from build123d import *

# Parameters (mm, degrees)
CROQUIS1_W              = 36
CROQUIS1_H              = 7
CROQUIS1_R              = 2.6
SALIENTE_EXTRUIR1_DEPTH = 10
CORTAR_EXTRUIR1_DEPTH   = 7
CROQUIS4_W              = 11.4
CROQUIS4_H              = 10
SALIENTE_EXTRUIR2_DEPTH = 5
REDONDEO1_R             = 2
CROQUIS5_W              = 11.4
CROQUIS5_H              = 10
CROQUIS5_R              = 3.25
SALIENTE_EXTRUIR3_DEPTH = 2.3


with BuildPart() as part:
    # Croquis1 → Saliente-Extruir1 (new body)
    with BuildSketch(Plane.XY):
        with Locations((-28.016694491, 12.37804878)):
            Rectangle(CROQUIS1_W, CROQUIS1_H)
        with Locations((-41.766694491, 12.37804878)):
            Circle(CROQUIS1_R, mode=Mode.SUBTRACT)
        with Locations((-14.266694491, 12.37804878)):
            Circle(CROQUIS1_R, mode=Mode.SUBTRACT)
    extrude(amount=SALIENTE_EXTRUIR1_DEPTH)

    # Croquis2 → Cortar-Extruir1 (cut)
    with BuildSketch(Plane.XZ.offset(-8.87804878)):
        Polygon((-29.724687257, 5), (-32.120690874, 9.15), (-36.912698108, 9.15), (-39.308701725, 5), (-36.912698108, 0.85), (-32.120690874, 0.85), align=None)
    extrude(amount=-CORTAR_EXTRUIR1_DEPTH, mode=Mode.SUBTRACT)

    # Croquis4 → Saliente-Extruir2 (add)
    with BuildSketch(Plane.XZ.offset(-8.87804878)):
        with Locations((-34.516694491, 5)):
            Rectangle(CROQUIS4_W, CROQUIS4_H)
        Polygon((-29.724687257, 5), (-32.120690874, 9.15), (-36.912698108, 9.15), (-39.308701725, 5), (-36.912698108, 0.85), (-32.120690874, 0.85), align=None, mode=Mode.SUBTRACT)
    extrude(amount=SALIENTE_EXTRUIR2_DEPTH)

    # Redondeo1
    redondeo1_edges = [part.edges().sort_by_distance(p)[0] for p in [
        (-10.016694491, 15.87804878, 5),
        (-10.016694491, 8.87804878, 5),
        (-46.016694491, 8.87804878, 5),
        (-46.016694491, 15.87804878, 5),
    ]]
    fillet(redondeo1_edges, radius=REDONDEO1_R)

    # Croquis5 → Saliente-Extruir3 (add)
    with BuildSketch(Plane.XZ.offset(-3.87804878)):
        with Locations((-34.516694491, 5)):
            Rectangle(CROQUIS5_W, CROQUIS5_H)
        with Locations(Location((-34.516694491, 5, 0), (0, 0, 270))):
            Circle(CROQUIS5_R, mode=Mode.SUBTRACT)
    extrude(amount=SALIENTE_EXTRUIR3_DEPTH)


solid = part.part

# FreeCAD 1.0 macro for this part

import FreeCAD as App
import Part
import Sketcher
Q = App.Units.Quantity


def edges_at(feature, points):
    """Names of the edges that pass closest to the given points."""
    edges = feature.Shape.Edges
    near = lambda p: min(range(len(edges)), key=lambda i: edges[i].distToShape(Part.Vertex(*p))[0])
    return sorted({f"Edge{near(p) + 1}" for p in points})


def add_polygon(sketch, points):
    """Adds a closed chain of lines whose ends are joined by coincident constraints."""
    first, n = sketch.GeometryCount, len(points)
    for a, b in zip(points, points[1:] + points[:1]):
        sketch.addGeometry(Part.LineSegment(App.Vector(*a, 0), App.Vector(*b, 0)), False)
    for i in range(n):
        sketch.addConstraint(Sketcher.Constraint("Coincident", first + i, 2, first + (i + 1) % n, 1))

doc = App.newDocument("Part")
body = doc.addObject("PartDesign::Body", "Body")

sketch1 = body.newObject("Sketcher::SketchObject", "Sketch")
sketch1.AttachmentSupport = (doc.getObject("XY_Plane"), [""])
sketch1.MapMode = "FlatFace"
add_polygon(sketch1, [(-46.016694, 15.878049), (-46.016694, 8.878049), (-10.016694, 8.878049), (-10.016694, 15.878049)])
sketch1.addGeometry(Part.Circle(App.Vector(-41.766694, 12.378049, 0), App.Vector(0, 0, 1), 2.6), False)
sketch1.addGeometry(Part.Circle(App.Vector(-14.266694, 12.378049, 0), App.Vector(0, 0, 1), 2.6), False)
sketch1.addConstraint([
    Sketcher.Constraint("Vertical", 0),
    Sketcher.Constraint("Horizontal", 1),
    Sketcher.Constraint("Vertical", 2),
    Sketcher.Constraint("Horizontal", 3),
    Sketcher.Constraint("Equal", 4, 5),
    Sketcher.Constraint("Horizontal", 4, 3, 5, 3),
    Sketcher.Constraint("Diameter", 4, Q("5.2 mm")),
    Sketcher.Constraint("DistanceX", 1, 1, 1, 2, Q("36 mm")),
    Sketcher.Constraint("DistanceY", 0, 2, 0, 1, Q("7 mm")),
    Sketcher.Constraint("DistanceX", 4, 3, 5, 3, Q("27.5 mm")),
    Sketcher.Constraint("DistanceY", 0, 2, 4, 3, Q("3.5 mm")),
    Sketcher.Constraint("DistanceX", 0, 2, 4, 3, Q("4.25 mm")),
    Sketcher.Constraint("DistanceY", -1, 1, 4, 3, Q("12.378049 mm")),
    Sketcher.Constraint("DistanceX", 4, 3, -1, 1, Q("41.766694 mm")),
])
pad1 = body.newObject("PartDesign::Pad", "Pad")
pad1.Profile = sketch1
pad1.Length = 10

sketch2 = body.newObject("Sketcher::SketchObject", "Sketch001")
sketch2.AttachmentSupport = (doc.getObject("XZ_Plane"), [""])
sketch2.MapMode = "FlatFace"
sketch2.AttachmentOffset = App.Placement(App.Vector(0, 0, -8.878049), App.Rotation())
add_polygon(sketch2, [(-29.724687, 5), (-32.120691, 9.15), (-36.912698, 9.15), (-39.308702, 5), (-36.912698, 0.85), (-32.120691, 0.85)])
sketch2.addConstraint([
    Sketcher.Constraint("Horizontal", 1),
    Sketcher.Constraint("Horizontal", 4),
    Sketcher.Constraint("Parallel", 0, 3),
    Sketcher.Constraint("Parallel", 2, 5),
    Sketcher.Constraint("Horizontal", 2, 2, 5, 2),
    Sketcher.Constraint("Vertical", 1, 2, 3, 2),
    Sketcher.Constraint("Vertical", 0, 2, 4, 2),
    Sketcher.Constraint("Angle", 0, Q("120 deg")),
    Sketcher.Constraint("DistanceY", -1, 1, 2, 2, Q("5 mm")),
    Sketcher.Constraint("DistanceY", 3, 2, 1, 2, Q("8.3 mm")),
    Sketcher.Constraint("DistanceX", 1, 2, -1, 1, Q("36.912698 mm")),
    Sketcher.Constraint("DistanceX", 1, 2, 1, 1, Q("4.792007 mm")),
])
pocket1 = body.newObject("PartDesign::Pocket", "Pocket")
pocket1.Profile = sketch2
pocket1.Length = 7

sketch3 = body.newObject("Sketcher::SketchObject", "Sketch002")
sketch3.AttachmentSupport = (doc.getObject("XZ_Plane"), [""])
sketch3.MapMode = "FlatFace"
sketch3.AttachmentOffset = App.Placement(App.Vector(0, 0, -8.878049), App.Rotation())
add_polygon(sketch3, [(-40.216694, 10), (-40.216694, 0), (-28.816694, 0), (-28.816694, 10)])
add_polygon(sketch3, [(-32.120691, 9.15), (-29.724687, 5), (-32.120691, 0.85), (-36.912698, 0.85), (-39.308702, 5), (-36.912698, 9.15)])
sketch3.addConstraint([
    Sketcher.Constraint("Vertical", 0),
    Sketcher.Constraint("Horizontal", 1),
    Sketcher.Constraint("Vertical", 2),
    Sketcher.Constraint("Horizontal", 3),
    Sketcher.Constraint("Horizontal", 6),
    Sketcher.Constraint("Horizontal", 9),
    Sketcher.Constraint("PointOnObject", 0, 2, -1),
    Sketcher.Constraint("Parallel", 4, 7),
    Sketcher.Constraint("Parallel", 5, 8),
    Sketcher.Constraint("Horizontal", 4, 2, 7, 2),
    Sketcher.Constraint("Vertical", 6, 2, 8, 2),
    Sketcher.Constraint("Vertical", 5, 2, 9, 2),
    Sketcher.Constraint("DistanceY", 0, 2, 0, 1, Q("10 mm")),
    Sketcher.Constraint("Angle", 4, Q("-60 deg")),
    Sketcher.Constraint("DistanceX", 1, 1, 1, 2, Q("11.4 mm")),
    Sketcher.Constraint("DistanceY", -1, 1, 4, 2, Q("5 mm")),
    Sketcher.Constraint("DistanceY", 6, 2, 8, 2, Q("8.3 mm")),
    Sketcher.Constraint("DistanceX", 6, 2, -1, 1, Q("36.912698 mm")),
    Sketcher.Constraint("DistanceX", 6, 2, 6, 1, Q("4.792007 mm")),
    Sketcher.Constraint("DistanceX", 0, 2, -1, 1, Q("40.216694 mm")),
])
pad2 = body.newObject("PartDesign::Pad", "Pad001")
pad2.Profile = sketch3
pad2.Length = 5
doc.recompute()

fillet = body.newObject("PartDesign::Fillet", "Fillet")
fillet.Base = (pad2, edges_at(pad2, [
    (-10.017, 15.878, 5),
    (-10.017, 8.878, 5),
    (-46.017, 8.878, 5),
    (-46.017, 15.878, 5),
]))
fillet.Radius = 2

sketch4 = body.newObject("Sketcher::SketchObject", "Sketch003")
sketch4.AttachmentSupport = (doc.getObject("XZ_Plane"), [""])
sketch4.MapMode = "FlatFace"
sketch4.AttachmentOffset = App.Placement(App.Vector(0, 0, -3.878049), App.Rotation())
add_polygon(sketch4, [(-40.216694, 10), (-40.216694, 0), (-28.816694, 0), (-28.816694, 10)])
sketch4.addGeometry(Part.Circle(App.Vector(-34.516694, 5, 0), App.Vector(0, 0, 1), 3.25), False)
sketch4.addConstraint([
    Sketcher.Constraint("Vertical", 0),
    Sketcher.Constraint("Horizontal", 1),
    Sketcher.Constraint("Vertical", 2),
    Sketcher.Constraint("Horizontal", 3),
    Sketcher.Constraint("PointOnObject", 0, 2, -1),
    Sketcher.Constraint("Diameter", 4, Q("6.5 mm")),
    Sketcher.Constraint("DistanceY", 0, 2, 0, 1, Q("10 mm")),
    Sketcher.Constraint("DistanceX", 1, 1, 1, 2, Q("11.4 mm")),
    Sketcher.Constraint("DistanceY", -1, 1, 4, 3, Q("5 mm")),
    Sketcher.Constraint("DistanceX", 0, 2, 4, 3, Q("5.7 mm")),
    Sketcher.Constraint("DistanceX", 4, 3, -1, 1, Q("34.516694 mm")),
])
pad3 = body.newObject("PartDesign::Pad", "Pad002")
pad3.Profile = sketch4
pad3.Length = 2.3

doc.recompute()
